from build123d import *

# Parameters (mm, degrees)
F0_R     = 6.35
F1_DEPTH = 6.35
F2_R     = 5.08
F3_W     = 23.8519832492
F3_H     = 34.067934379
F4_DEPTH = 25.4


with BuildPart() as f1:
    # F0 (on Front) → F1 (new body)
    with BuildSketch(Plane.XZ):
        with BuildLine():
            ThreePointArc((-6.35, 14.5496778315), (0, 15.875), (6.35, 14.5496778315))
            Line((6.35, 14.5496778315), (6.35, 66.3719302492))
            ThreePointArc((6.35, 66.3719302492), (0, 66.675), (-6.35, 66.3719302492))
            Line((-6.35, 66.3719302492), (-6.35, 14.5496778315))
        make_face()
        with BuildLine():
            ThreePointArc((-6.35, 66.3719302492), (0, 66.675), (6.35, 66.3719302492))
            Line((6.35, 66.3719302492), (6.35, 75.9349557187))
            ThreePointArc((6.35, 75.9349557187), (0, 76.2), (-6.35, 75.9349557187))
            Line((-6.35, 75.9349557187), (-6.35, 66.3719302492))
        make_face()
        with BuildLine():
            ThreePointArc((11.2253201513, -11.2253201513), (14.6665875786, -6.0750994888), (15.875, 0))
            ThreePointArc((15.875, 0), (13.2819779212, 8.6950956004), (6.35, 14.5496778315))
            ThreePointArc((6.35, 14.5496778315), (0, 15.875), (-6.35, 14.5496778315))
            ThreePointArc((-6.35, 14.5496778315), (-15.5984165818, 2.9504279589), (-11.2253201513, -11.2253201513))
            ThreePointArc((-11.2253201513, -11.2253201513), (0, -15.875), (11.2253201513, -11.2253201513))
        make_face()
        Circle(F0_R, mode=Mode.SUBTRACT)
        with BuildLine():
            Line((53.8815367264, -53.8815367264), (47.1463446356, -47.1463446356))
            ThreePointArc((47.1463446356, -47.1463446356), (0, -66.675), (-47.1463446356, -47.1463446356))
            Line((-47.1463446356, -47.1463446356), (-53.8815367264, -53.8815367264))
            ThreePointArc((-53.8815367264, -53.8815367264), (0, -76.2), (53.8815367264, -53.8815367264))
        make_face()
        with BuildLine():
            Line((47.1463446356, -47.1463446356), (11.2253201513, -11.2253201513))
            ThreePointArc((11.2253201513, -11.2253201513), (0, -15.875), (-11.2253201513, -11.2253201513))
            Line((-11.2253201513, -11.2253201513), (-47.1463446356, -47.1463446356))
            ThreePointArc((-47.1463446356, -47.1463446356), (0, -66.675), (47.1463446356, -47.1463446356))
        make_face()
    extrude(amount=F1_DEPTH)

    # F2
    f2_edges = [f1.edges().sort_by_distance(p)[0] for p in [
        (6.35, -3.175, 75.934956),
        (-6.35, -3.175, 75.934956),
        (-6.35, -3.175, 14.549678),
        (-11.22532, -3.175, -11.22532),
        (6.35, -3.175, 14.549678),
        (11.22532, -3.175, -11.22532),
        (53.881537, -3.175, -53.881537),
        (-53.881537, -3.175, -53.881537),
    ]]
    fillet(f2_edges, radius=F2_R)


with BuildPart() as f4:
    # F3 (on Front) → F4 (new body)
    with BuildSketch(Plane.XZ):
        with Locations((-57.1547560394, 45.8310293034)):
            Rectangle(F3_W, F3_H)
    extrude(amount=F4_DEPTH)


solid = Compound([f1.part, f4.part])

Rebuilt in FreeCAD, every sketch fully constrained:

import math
import FreeCAD as App
import Part
import Sketcher

V = App.Vector
Q = App.Units.Quantity


def edges_at(feature, points):
    """Names of the edges that pass closest to the given points."""
    edges = feature.Shape.Edges
    near = lambda p: min(range(len(edges)), key=lambda i: edges[i].distToShape(Part.Vertex(*p))[0])
    return sorted({f"Edge{near(p) + 1}" for p in points})

doc = App.newDocument("Part")
body = doc.addObject("PartDesign::Body", "Body")

sketch1 = body.newObject("Sketcher::SketchObject", "Sketch")
sketch1.AttachmentSupport = (doc.getObject("XZ_Plane"), [""])
sketch1.MapMode = "FlatFace"
sketch1.addGeometry(Part.LineSegment(V(6, 15, 0), V(6, 76, 0)), False)
sketch1.addGeometry(Part.ArcOfCircle(Part.Circle(V(0, 0, 0), V(0, 0, 1), 76), math.radians(85.22), math.radians(94.78)), False)
sketch1.addGeometry(Part.LineSegment(V(-6, 76, 0), V(-6, 15, 0)), False)
sketch1.addGeometry(Part.ArcOfCircle(Part.Circle(V(0, 0, 0), V(0, 0, 1), 16), math.radians(114), math.radians(225)), False)
sketch1.addGeometry(Part.LineSegment(V(-11, -11, 0), V(-54, -54, 0)), False)
sketch1.addGeometry(Part.ArcOfCircle(Part.Circle(V(0, 0, 0), V(0, 0, 1), 76), math.radians(-135), math.radians(-45)), False)
sketch1.addGeometry(Part.LineSegment(V(54, -54, 0), V(11, -11, 0)), False)
sketch1.addGeometry(Part.ArcOfCircle(Part.Circle(V(0, 0, 0), V(0, 0, 1), 16), math.radians(-45), math.radians(0)), False)
sketch1.addGeometry(Part.ArcOfCircle(Part.Circle(V(0, 0, 0), V(0, 0, 1), 16), math.radians(0), math.radians(66)), False)
sketch1.addGeometry(Part.Circle(V(0, 0, 0), V(0, 0, 1), 6), False)
sketch1.addConstraint(Sketcher.Constraint("Coincident", 0, 2, 1, 1))
sketch1.addConstraint(Sketcher.Constraint("Coincident", 1, 2, 2, 1))
sketch1.addConstraint(Sketcher.Constraint("Coincident", 2, 2, 3, 1))
sketch1.addConstraint(Sketcher.Constraint("Coincident", 3, 2, 4, 1))
sketch1.addConstraint(Sketcher.Constraint("Coincident", 4, 2, 5, 1))
sketch1.addConstraint(Sketcher.Constraint("Coincident", 5, 2, 6, 1))
sketch1.addConstraint(Sketcher.Constraint("Coincident", 6, 2, 7, 1))
sketch1.addConstraint(Sketcher.Constraint("Tangent", 7, 2, 8, 1))
sketch1.addConstraint(Sketcher.Constraint("Coincident", 8, 2, 0, 1))
sketch1.addConstraint(Sketcher.Constraint("Vertical", 0))
sketch1.addConstraint(Sketcher.Constraint("Vertical", 2))
sketch1.addConstraint(Sketcher.Constraint("Coincident", 1, 3, -1, 1))
sketch1.addConstraint(Sketcher.Constraint("Coincident", 3, 3, -1, 1))
sketch1.addConstraint(Sketcher.Constraint("Coincident", 5, 3, -1, 1))
sketch1.addConstraint(Sketcher.Constraint("Coincident", 7, 3, -1, 1))
sketch1.addConstraint(Sketcher.Constraint("Coincident", 9, 3, -1, 1))
sketch1.addConstraint(Sketcher.Constraint("Equal", 1, 5))
sketch1.addConstraint(Sketcher.Constraint("Equal", 3, 7))
sketch1.addConstraint(Sketcher.Constraint("Equal", 7, 8))
sketch1.addConstraint(Sketcher.Constraint("PointOnObject", 7, 2, -1))
sketch1.addConstraint(Sketcher.Constraint("Perpendicular", 4, 6))
sketch1.addConstraint(Sketcher.Constraint("Horizontal", 0, 2, 1, 2))
sketch1.addConstraint(Sketcher.Constraint("Horizontal", 4, 2, 5, 2))
sketch1.addConstraint(Sketcher.Constraint("Horizontal", 3, 2, 6, 2))
sketch1.addConstraint(Sketcher.Constraint("Radius", 1, Q("3 in")))
sketch1.addConstraint(Sketcher.Constraint("Diameter", 9, Q("0.5 in")))
sketch1.addConstraint(Sketcher.Constraint("Radius", 3, Q("0.625 in")))
sketch1.addConstraint(Sketcher.Constraint("DistanceX", 1, 2, 0, 2, Q("0.5 in")))
sketch1.addConstraint(Sketcher.Constraint("DistanceX", 3, 2, -1, 1, 11.22532))
pad1 = body.newObject("PartDesign::Pad", "Pad")
pad1.Profile = sketch1
pad1.Length = Q("0.25 in")
doc.recompute()

fillet = body.newObject("PartDesign::Fillet", "Fillet")
fillet.Base = (pad1, edges_at(pad1, [
    (6.35, -3.175, 75.935),
    (-6.35, -3.175, 75.935),
    (-6.35, -3.175, 14.55),
    (-11.225, -3.175, -11.225),
    (6.35, -3.175, 14.55),
    (11.225, -3.175, -11.225),
    (53.882, -3.175, -53.882),
    (-53.882, -3.175, -53.882),
]))
fillet.Radius = Q("0.2 in")
body2 = doc.addObject("PartDesign::Body", "Body001")

sketch2 = body2.newObject("Sketcher::SketchObject", "Sketch001")
sketch2.AttachmentSupport = (doc.getObject("XZ_Plane001"), [""])
sketch2.MapMode = "FlatFace"
sketch2.addGeometry(Part.LineSegment(V(-69, 63, 0), V(-69, 29, 0)), False)
sketch2.addGeometry(Part.LineSegment(V(-69, 29, 0), V(-45, 29, 0)), False)
sketch2.addGeometry(Part.LineSegment(V(-45, 29, 0), V(-45, 63, 0)), False)
sketch2.addGeometry(Part.LineSegment(V(-45, 63, 0), V(-69, 63, 0)), False)
sketch2.addConstraint(Sketcher.Constraint("Coincident", 0, 2, 1, 1))
sketch2.addConstraint(Sketcher.Constraint("Coincident", 1, 2, 2, 1))
sketch2.addConstraint(Sketcher.Constraint("Coincident", 2, 2, 3, 1))
sketch2.addConstraint(Sketcher.Constraint("Coincident", 3, 2, 0, 1))
sketch2.addConstraint(Sketcher.Constraint("Vertical", 0))
sketch2.addConstraint(Sketcher.Constraint("Horizontal", 1))
sketch2.addConstraint(Sketcher.Constraint("Vertical", 2))
sketch2.addConstraint(Sketcher.Constraint("Horizontal", 3))
sketch2.addConstraint(Sketcher.Constraint("DistanceY", -1, 1, 2, 2, Q("2.4749999 in")))
sketch2.addConstraint(Sketcher.Constraint("DistanceX", 1, 1, 1, 2, 23.851983))
sketch2.addConstraint(Sketcher.Constraint("DistanceY", 0, 2, 0, 1, 34.067934))
sketch2.addConstraint(Sketcher.Constraint("DistanceX", 0, 2, -1, 1, 69.080748))
pad2 = body2.newObject("PartDesign::Pad", "Pad001")
pad2.Profile = sketch2
pad2.Length = Q("1 in")

doc.recompute()
